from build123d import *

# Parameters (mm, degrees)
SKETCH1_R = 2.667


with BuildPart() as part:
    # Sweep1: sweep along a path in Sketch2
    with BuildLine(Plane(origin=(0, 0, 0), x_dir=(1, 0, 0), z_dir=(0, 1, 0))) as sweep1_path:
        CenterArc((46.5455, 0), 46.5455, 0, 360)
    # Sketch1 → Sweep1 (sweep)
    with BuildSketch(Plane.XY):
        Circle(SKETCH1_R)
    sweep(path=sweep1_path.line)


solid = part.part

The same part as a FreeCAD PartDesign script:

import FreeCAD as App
import Part
import Sketcher
Q = App.Units.Quantity

doc = App.newDocument("Part")
body = doc.addObject("PartDesign::Body", "Body")

# Sketch on XY plane
sketch1 = doc.addObject("Sketcher::SketchObject", "Sketch")
body.addObject(sketch1)
sketch1.AttachmentSupport = (doc.XY_Plane, [""])
sketch1.MapMode = "FlatFace"
sketch1.addGeometry(Part.Circle(App.Vector(0, 0, 0), App.Vector(0, 0, 1), 2.7), False)
sketch1.addConstraint(Sketcher.Constraint("Coincident", 0, 3, -1, 1))
sketch1.addConstraint(Sketcher.Constraint("Diameter", 0, Q("0.21 in")))

# Sketch on XZ plane
sketch2 = doc.addObject("Sketcher::SketchObject", "Sketch001")
body.addObject(sketch2)
sketch2.AttachmentSupport = (doc.XZ_Plane, [""])
sketch2.MapMode = "FlatFace"
sketch2.addGeometry(Part.Circle(App.Vector(47, 0, 0), App.Vector(0, 0, 1), 47), False)
sketch2.addConstraint(Sketcher.Constraint("PointOnObject", 0, 3, -1))
sketch2.addConstraint(Sketcher.Constraint("Diameter", 0, Q("3.665 in")))
sketch2.addConstraint(Sketcher.Constraint("DistanceX", -1, 1, 0, 3, Q("1.8325 in")))
doc.recompute()

additivepipe = doc.addObject("PartDesign::AdditivePipe", "AdditivePipe")
body.addObject(additivepipe)
additivepipe.Profile = sketch1
additivepipe.Spine = (sketch2, ["Edge1"])

doc.recompute()
